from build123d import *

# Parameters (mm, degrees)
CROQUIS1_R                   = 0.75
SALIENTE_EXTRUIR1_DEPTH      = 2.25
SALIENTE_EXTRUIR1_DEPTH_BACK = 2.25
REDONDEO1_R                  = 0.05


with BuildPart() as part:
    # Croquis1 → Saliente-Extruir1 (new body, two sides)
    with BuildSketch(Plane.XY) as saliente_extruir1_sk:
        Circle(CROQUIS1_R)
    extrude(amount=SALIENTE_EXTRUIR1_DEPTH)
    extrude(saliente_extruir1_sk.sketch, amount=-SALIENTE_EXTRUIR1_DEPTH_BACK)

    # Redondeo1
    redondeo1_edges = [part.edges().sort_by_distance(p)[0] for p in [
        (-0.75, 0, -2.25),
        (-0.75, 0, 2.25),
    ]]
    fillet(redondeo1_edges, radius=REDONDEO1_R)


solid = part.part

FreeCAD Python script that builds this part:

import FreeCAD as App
import Part
import Sketcher


def edges_at(feature, points):
    """Names of the edges that pass closest to the given points."""
    edges = feature.Shape.Edges
    near = lambda p: min(range(len(edges)), key=lambda i: edges[i].distToShape(Part.Vertex(*p))[0])
    return sorted({f"Edge{near(p) + 1}" for p in points})

doc = App.newDocument("Part")
body = doc.addObject("PartDesign::Body", "Body")

# Sketch on XY plane
sketch1 = body.newObject("Sketcher::SketchObject", "Sketch")
sketch1.AttachmentSupport = (doc.getObject("XY_Plane"), [""])
sketch1.MapMode = "FlatFace"
sketch1.addGeometry(Part.Circle(App.Vector(0, 0, 0), App.Vector(0, 0, 1), 0.8), False)
sketch1.addConstraint(Sketcher.Constraint("Coincident", 0, 3, -1, 1))
sketch1.addConstraint(Sketcher.Constraint("Diameter", 0, 1.5))
pad1 = body.newObject("PartDesign::Pad", "Pad")
pad1.Profile = sketch1
pad1.Type = "TwoLengths"
pad1.Length = 2.25
pad1.Length2 = 2.25
doc.recompute()

fillet = body.newObject("PartDesign::Fillet", "Fillet")
fillet.Base = (pad1, edges_at(pad1, [(-0.75, 0, -2.25), (-0.75, 0, 2.25)]))
fillet.Radius = 0.05

doc.recompute()
